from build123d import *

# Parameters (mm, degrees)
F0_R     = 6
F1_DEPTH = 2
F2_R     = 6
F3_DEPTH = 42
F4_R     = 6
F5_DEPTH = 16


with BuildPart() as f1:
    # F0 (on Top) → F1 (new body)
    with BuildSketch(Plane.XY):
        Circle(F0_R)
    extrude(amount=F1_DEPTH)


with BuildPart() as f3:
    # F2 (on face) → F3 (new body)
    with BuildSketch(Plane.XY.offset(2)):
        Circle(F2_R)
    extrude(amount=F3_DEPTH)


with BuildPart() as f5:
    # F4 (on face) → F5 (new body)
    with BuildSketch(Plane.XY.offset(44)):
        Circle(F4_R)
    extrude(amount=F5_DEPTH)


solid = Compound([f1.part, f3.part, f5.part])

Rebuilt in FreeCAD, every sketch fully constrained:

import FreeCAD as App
import Part
import Sketcher

doc = App.newDocument("Part")
body = doc.addObject("PartDesign::Body", "Body")

# Sketch on XY plane
sketch1 = doc.addObject("Sketcher::SketchObject", "Sketch")
body.addObject(sketch1)
sketch1.AttachmentSupport = (doc.XY_Plane, [""])
sketch1.MapMode = "FlatFace"
sketch1.addGeometry(Part.Circle(App.Vector(0, 0, 0), App.Vector(0, 0, 1), 6), False)
sketch1.addConstraint(Sketcher.Constraint("Coincident", 0, 3, -1, 1))
sketch1.addConstraint(Sketcher.Constraint("Diameter", 0, 12.0))
pad1 = doc.addObject("PartDesign::Pad", "Pad")
body.addObject(pad1)
pad1.Profile = sketch1
pad1.Length = 2
body2 = doc.addObject("PartDesign::Body", "Body001")

# Sketch on XY plane
sketch2 = doc.addObject("Sketcher::SketchObject", "Sketch001")
body2.addObject(sketch2)
sketch2.AttachmentSupport = (doc.getObject("XY_Plane001"), [""])
sketch2.MapMode = "FlatFace"
sketch2.AttachmentOffset = App.Placement(App.Vector(0, 0, 2), App.Rotation())
sketch2.addGeometry(Part.Circle(App.Vector(0, 0, 0), App.Vector(0, 0, 1), 6), False)
sketch2.addConstraint(Sketcher.Constraint("Coincident", 0, 3, -1, 1))
sketch2.addConstraint(Sketcher.Constraint("Diameter", 0, 12.0))
pad2 = doc.addObject("PartDesign::Pad", "Pad001")
body2.addObject(pad2)
pad2.Profile = sketch2
pad2.Length = 42
body3 = doc.addObject("PartDesign::Body", "Body002")

# Sketch on XY plane
sketch3 = doc.addObject("Sketcher::SketchObject", "Sketch002")
body3.addObject(sketch3)
sketch3.AttachmentSupport = (doc.getObject("XY_Plane002"), [""])
sketch3.MapMode = "FlatFace"
sketch3.AttachmentOffset = App.Placement(App.Vector(0, 0, 44), App.Rotation())
sketch3.addGeometry(Part.Circle(App.Vector(0, 0, 0), App.Vector(0, 0, 1), 6), False)
sketch3.addConstraint(Sketcher.Constraint("Coincident", 0, 3, -1, 1))
sketch3.addConstraint(Sketcher.Constraint("Diameter", 0, 12.0))
pad3 = doc.addObject("PartDesign::Pad", "Pad002")
body3.addObject(pad3)
pad3.Profile = sketch3
pad3.Length = 16

doc.recompute()
